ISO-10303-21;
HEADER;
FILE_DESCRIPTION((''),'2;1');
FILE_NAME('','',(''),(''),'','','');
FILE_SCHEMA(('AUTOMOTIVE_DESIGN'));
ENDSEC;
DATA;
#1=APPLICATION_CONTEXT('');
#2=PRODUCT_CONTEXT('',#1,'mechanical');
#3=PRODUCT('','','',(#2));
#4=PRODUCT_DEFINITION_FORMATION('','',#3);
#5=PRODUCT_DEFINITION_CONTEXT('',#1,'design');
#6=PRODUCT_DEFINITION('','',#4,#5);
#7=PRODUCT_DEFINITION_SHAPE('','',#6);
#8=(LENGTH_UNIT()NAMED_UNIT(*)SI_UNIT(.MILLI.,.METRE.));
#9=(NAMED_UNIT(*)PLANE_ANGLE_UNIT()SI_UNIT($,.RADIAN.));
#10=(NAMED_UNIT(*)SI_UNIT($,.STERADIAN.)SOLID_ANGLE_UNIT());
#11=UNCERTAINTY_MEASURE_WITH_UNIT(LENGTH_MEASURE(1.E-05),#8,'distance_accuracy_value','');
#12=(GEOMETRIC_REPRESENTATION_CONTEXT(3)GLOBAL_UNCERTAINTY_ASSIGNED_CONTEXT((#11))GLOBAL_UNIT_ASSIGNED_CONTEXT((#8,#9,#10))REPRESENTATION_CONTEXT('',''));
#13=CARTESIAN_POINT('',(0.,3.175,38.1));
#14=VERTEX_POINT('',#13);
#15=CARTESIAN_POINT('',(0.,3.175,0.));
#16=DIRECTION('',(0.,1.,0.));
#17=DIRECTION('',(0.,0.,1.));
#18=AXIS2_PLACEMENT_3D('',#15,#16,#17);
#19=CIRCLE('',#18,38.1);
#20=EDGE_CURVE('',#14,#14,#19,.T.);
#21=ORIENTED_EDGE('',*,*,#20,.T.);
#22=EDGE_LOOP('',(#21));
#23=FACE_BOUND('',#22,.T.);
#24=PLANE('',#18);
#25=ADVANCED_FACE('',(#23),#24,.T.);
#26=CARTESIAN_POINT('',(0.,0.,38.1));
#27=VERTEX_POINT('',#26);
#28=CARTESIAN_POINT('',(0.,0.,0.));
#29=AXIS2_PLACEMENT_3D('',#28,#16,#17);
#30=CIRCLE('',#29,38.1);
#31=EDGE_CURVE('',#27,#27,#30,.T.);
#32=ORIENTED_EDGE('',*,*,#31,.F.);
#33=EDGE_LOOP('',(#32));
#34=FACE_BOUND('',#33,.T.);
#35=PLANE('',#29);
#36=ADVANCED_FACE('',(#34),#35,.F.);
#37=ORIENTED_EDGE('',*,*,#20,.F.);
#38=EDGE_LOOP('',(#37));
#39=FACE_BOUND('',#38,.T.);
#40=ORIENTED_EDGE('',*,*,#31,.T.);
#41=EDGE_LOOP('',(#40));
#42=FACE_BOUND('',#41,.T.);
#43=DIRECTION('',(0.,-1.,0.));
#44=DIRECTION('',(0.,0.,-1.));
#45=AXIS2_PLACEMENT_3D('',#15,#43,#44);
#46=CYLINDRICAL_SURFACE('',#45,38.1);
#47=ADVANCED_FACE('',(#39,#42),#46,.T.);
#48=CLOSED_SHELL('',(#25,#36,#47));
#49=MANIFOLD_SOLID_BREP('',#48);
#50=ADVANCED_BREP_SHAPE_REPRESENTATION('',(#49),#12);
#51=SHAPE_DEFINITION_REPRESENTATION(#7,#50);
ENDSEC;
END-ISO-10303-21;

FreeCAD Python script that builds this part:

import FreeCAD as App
import Part
import Sketcher
Q = App.Units.Quantity

doc = App.newDocument("Part")
body = doc.addObject("PartDesign::Body", "Body")

# Sketch on XZ plane
sketch1 = doc.addObject("Sketcher::SketchObject", "Sketch")
body.addObject(sketch1)
sketch1.AttachmentSupport = (doc.XZ_Plane, [""])
sketch1.MapMode = "FlatFace"
sketch1.addGeometry(Part.Circle(App.Vector(0, 0, 0), App.Vector(0, 0, 1), 38), False)
sketch1.addConstraint(Sketcher.Constraint("Coincident", 0, 3, -1, 1))
sketch1.addConstraint(Sketcher.Constraint("Diameter", 0, Q("3 in")))
pad1 = doc.addObject("PartDesign::Pad", "Pad")
body.addObject(pad1)
pad1.Profile = sketch1
pad1.Length = Q("0.125 in")
pad1.Reversed = True

doc.recompute()
